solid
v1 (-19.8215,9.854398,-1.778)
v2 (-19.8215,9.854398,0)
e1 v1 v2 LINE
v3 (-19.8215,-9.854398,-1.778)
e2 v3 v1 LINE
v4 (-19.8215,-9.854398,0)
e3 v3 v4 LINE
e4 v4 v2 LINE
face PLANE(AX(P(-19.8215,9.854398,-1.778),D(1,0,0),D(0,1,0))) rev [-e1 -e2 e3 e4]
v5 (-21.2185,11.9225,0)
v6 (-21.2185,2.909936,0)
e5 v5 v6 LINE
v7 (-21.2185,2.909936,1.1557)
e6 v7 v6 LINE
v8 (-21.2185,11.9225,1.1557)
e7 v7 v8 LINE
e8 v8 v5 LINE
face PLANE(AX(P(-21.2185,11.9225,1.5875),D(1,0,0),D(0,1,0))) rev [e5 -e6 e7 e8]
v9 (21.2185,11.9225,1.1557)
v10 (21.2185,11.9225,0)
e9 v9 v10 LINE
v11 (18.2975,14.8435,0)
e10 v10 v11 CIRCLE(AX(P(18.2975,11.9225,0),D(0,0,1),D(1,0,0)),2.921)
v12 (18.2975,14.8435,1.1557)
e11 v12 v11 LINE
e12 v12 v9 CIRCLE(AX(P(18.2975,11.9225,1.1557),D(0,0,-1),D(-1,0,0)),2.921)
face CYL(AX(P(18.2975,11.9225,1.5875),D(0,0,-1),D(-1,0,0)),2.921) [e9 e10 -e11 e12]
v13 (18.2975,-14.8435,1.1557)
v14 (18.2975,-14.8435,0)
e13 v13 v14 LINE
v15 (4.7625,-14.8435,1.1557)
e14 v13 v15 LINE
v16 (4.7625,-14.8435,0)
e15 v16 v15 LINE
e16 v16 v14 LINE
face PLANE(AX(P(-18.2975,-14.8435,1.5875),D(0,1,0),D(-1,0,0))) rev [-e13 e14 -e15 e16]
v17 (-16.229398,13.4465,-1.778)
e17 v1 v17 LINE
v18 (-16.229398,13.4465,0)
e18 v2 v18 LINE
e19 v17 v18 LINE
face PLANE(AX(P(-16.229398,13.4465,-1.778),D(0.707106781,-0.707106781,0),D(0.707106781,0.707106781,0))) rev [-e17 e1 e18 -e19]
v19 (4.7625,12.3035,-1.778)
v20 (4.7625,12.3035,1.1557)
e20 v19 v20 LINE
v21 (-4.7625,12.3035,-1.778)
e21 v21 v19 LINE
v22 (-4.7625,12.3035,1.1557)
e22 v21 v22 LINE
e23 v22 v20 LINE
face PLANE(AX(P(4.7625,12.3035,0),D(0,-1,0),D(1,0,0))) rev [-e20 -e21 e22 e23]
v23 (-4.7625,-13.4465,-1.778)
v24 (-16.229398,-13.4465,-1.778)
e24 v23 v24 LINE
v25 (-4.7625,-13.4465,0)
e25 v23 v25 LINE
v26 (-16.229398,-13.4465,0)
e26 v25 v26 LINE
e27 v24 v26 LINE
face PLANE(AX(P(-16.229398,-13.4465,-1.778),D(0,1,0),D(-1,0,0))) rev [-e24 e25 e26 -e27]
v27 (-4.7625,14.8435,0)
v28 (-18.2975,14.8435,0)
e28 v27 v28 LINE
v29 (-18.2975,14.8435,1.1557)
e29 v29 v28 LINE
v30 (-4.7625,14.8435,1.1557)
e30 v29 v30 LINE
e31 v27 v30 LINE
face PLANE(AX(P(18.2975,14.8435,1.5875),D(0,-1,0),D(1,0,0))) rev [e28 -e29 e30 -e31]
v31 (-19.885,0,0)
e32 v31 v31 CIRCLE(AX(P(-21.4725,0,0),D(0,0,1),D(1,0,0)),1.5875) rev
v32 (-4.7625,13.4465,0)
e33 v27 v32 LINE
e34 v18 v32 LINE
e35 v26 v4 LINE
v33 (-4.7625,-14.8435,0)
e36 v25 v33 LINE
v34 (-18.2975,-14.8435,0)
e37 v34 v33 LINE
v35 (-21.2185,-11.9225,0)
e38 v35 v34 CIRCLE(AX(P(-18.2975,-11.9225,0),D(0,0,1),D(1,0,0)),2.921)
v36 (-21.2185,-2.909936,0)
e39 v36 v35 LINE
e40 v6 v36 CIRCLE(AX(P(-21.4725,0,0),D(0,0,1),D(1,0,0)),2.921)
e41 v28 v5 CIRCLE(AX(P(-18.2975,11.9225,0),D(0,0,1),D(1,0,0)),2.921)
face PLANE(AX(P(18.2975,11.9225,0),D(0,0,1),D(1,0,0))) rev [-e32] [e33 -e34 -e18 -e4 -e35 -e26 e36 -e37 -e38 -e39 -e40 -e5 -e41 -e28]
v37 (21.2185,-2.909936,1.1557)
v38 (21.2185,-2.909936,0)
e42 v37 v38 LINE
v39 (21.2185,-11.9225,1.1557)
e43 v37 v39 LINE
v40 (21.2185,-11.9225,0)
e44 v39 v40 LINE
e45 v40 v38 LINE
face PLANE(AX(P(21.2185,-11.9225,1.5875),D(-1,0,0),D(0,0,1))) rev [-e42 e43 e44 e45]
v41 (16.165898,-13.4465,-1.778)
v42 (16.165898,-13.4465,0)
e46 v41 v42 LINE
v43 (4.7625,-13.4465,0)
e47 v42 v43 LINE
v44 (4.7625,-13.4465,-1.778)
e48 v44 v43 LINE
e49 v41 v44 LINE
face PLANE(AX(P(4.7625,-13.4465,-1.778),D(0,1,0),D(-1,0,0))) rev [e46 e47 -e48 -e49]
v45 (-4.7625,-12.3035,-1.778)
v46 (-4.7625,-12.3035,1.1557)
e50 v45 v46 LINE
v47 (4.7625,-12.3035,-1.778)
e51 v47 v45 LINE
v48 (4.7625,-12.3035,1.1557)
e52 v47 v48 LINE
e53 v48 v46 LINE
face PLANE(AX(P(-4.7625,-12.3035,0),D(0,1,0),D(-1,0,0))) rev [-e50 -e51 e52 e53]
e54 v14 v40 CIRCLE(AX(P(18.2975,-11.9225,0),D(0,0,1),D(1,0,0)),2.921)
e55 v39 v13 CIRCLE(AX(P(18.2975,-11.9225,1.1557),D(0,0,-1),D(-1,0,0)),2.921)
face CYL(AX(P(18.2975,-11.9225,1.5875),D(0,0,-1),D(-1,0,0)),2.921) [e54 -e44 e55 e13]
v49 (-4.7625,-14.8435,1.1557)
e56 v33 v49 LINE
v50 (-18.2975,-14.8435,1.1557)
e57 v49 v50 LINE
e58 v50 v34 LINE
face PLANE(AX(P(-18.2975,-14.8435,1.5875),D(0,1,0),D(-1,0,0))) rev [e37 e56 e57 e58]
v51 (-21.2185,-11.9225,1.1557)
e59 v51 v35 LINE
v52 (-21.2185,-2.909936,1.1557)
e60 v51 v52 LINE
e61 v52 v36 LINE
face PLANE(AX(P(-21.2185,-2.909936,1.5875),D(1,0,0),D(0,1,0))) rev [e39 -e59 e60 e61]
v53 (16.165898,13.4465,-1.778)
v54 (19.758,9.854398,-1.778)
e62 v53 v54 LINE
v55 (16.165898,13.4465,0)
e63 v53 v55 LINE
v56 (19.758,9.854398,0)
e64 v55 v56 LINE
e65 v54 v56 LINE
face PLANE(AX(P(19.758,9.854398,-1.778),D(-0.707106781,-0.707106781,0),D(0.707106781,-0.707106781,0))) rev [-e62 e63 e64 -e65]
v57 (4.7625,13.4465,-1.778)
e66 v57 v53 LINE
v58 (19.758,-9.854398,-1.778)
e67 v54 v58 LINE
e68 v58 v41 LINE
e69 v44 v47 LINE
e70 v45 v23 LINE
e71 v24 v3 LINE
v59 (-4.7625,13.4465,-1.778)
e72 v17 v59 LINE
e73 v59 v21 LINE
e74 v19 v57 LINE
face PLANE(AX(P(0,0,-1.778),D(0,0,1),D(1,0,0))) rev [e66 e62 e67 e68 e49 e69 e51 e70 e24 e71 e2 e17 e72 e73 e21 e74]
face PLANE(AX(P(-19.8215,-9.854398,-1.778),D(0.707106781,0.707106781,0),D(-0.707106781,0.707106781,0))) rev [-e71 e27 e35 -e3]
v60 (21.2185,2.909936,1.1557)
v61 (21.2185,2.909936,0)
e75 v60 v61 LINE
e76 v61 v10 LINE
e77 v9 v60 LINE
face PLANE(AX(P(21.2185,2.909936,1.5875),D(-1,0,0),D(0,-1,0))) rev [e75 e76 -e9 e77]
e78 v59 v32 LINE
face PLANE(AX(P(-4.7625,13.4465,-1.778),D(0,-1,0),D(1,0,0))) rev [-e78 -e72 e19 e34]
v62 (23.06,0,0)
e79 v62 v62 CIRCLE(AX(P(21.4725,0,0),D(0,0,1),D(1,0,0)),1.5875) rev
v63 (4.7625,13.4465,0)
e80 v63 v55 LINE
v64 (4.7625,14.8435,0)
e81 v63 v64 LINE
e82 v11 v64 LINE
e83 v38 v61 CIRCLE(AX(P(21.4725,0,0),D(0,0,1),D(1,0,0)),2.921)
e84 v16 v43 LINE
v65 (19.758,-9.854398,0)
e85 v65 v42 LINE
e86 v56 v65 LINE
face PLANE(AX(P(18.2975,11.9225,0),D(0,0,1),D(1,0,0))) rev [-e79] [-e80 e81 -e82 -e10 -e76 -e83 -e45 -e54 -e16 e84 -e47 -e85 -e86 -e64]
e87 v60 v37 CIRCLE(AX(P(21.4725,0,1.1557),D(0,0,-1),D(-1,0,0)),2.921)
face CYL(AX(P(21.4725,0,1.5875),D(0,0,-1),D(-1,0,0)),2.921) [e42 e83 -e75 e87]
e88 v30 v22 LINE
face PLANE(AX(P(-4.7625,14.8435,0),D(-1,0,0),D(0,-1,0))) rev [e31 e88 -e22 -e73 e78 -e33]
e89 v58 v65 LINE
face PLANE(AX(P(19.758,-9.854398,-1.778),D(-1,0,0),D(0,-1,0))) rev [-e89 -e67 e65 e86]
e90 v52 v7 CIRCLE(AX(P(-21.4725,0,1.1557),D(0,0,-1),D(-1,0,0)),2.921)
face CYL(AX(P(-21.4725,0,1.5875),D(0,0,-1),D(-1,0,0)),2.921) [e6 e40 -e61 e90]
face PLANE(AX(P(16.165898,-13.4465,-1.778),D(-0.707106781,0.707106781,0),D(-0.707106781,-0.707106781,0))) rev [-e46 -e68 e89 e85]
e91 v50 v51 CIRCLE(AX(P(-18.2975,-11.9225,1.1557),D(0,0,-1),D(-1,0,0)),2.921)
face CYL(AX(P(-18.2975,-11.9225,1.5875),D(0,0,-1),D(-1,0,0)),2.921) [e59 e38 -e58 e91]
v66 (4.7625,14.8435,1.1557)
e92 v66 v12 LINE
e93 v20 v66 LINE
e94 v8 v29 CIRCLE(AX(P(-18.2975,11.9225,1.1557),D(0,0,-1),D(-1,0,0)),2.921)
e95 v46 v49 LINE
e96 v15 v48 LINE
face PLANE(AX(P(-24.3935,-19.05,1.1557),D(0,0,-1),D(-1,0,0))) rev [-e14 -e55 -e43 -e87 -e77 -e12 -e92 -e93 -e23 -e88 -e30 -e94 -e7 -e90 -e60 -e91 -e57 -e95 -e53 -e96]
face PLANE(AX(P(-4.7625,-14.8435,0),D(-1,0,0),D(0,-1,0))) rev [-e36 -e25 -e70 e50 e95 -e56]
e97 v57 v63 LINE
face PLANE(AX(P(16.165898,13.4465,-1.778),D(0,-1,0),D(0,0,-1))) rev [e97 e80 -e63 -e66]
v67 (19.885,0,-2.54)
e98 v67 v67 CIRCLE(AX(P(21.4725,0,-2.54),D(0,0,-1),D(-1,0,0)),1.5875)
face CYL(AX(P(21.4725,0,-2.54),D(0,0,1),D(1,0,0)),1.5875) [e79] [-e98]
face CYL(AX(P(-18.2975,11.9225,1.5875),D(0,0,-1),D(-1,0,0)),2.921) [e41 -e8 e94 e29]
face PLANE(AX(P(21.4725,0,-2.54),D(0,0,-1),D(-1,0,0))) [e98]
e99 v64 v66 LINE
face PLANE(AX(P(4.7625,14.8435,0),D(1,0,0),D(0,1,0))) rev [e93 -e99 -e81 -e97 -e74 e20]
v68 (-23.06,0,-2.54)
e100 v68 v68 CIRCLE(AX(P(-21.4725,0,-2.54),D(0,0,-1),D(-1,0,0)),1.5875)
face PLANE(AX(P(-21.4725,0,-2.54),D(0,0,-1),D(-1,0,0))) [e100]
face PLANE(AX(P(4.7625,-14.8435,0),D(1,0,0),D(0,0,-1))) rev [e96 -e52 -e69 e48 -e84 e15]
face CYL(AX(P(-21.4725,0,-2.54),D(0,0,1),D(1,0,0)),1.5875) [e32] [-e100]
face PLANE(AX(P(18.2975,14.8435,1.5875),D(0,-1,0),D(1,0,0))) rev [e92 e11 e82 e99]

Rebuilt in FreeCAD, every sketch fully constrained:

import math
import FreeCAD as App
import Part
import Sketcher

V = App.Vector
Q = App.Units.Quantity


def add_polygon(sketch, points):
    """Adds a closed chain of lines whose ends are joined by coincident constraints."""
    first, n = sketch.GeometryCount, len(points)
    for a, b in zip(points, points[1:] + points[:1]):
        sketch.addGeometry(Part.LineSegment(App.Vector(*a, 0), App.Vector(*b, 0)), False)
    for i in range(n):
        sketch.addConstraint(Sketcher.Constraint("Coincident", first + i, 2, first + (i + 1) % n, 1))

doc = App.newDocument("Part")
body = doc.addObject("PartDesign::Body", "Body")

# Sketch on XY plane
sketch1 = body.newObject("Sketcher::SketchObject", "Sketch")
sketch1.AttachmentSupport = (doc.getObject("XY_Plane"), [""])
sketch1.MapMode = "FlatFace"
sketch1.addGeometry([
    Part.LineSegment(V(21.2, 2.9, 0), V(21.2, 11.9, 0)),  # 0
    Part.ArcOfCircle(Part.Circle(V(18.3, 11.9, 0), V(0, 0, 1), 2.9), math.radians(0), math.radians(90)),  # 1
    Part.LineSegment(V(18.3, 14.8, 0), V(-18.3, 14.8, 0)),  # 2
    Part.ArcOfCircle(Part.Circle(V(-18.3, 11.9, 0), V(0, 0, 1), 2.9), math.radians(90), math.radians(180)),  # 3
    Part.LineSegment(V(-21.2, 11.9, 0), V(-21.2, 2.9, 0)),  # 4
    Part.ArcOfCircle(Part.Circle(V(-21.5, 0, 0), V(0, 0, 1), 2.9), math.radians(85), math.radians(275)),  # 5
    Part.LineSegment(V(-21.2, -2.9, 0), V(-21.2, -11.9, 0)),  # 6
    Part.ArcOfCircle(Part.Circle(V(-18.3, -11.9, 0), V(0, 0, 1), 2.9), math.radians(180), math.radians(270)),  # 7
    Part.LineSegment(V(-18.3, -14.8, 0), V(18.3, -14.8, 0)),  # 8
    Part.ArcOfCircle(Part.Circle(V(18.3, -11.9, 0), V(0, 0, 1), 2.9), math.radians(-90), math.radians(0)),  # 9
    Part.LineSegment(V(21.2, -11.9, 0), V(21.2, -2.9, 0)),  # 10
    Part.ArcOfCircle(Part.Circle(V(21.5, 0, 0), V(0, 0, 1), 2.9), math.radians(-95), math.radians(95)),  # 11
], False)
sketch1.addConstraint([
    Sketcher.Constraint("Tangent", 0, 2, 1, 1),
    Sketcher.Constraint("Tangent", 1, 2, 2, 1),
    Sketcher.Constraint("Tangent", 2, 2, 3, 1),
    Sketcher.Constraint("Tangent", 3, 2, 4, 1),
    Sketcher.Constraint("Coincident", 4, 2, 5, 1),
    Sketcher.Constraint("Coincident", 5, 2, 6, 1),
    Sketcher.Constraint("Tangent", 6, 2, 7, 1),
    Sketcher.Constraint("Tangent", 7, 2, 8, 1),
    Sketcher.Constraint("Tangent", 8, 2, 9, 1),
    Sketcher.Constraint("Tangent", 9, 2, 10, 1),
    Sketcher.Constraint("Coincident", 10, 2, 11, 1),
    Sketcher.Constraint("Coincident", 11, 2, 0, 1),
    Sketcher.Constraint("Vertical", 0),
    Sketcher.Constraint("Horizontal", 2),
    Sketcher.Constraint("Vertical", 4),
    Sketcher.Constraint("Vertical", 6),
    Sketcher.Constraint("Horizontal", 8),
    Sketcher.Constraint("Vertical", 10),
    Sketcher.Constraint("Equal", 1, 3),
    Sketcher.Constraint("Equal", 3, 5),
    Sketcher.Constraint("Equal", 5, 7),
    Sketcher.Constraint("Equal", 7, 9),
    Sketcher.Constraint("Equal", 9, 11),
    Sketcher.Constraint("Symmetric", 1, 3, 7, 3, -1, 1),
    Sketcher.Constraint("Symmetric", 5, 3, 11, 3, -1, 1),
    Sketcher.Constraint("Symmetric", 5, 2, 10, 2, -2),
    Sketcher.Constraint("Horizontal", 4, 2, 11, 2),
    Sketcher.Constraint("Radius", 1, Q("0.115 in")),
    Sketcher.Constraint("DistanceX", 0, 2, 11, 3, Q("0.01 in")),
    Sketcher.Constraint("DistanceX", 2, 2, 2, 1, 36.595),
    Sketcher.Constraint("DistanceY", -1, 1, 1, 3, 11.9225),
])
pad1 = body.newObject("PartDesign::Pad", "Pad")
pad1.Profile = sketch1
pad1.Length = Q("0.0625 in")

# Sketch on XY plane
sketch2 = body.newObject("Sketcher::SketchObject", "Sketch001")
sketch2.AttachmentSupport = (doc.getObject("XY_Plane"), [""])
sketch2.MapMode = "FlatFace"
sketch2.AttachmentOffset = App.Placement(V(0, 0, 0.0625 * 25.4), App.Rotation())
add_polygon(sketch2, [(-4.8, -12.3), (-4.8, -14.8), (4.8, -14.8), (4.8, -12.3)])  # lines 0-3
add_polygon(sketch2, [(-4.8, 14.8), (-4.8, 12.3), (4.8, 12.3), (4.8, 14.8)])  # lines 4-7
sketch2.addConstraint([
    Sketcher.Constraint("Vertical", 0),
    Sketcher.Constraint("Horizontal", 1),
    Sketcher.Constraint("Vertical", 2),
    Sketcher.Constraint("Horizontal", 3),
    Sketcher.Constraint("Vertical", 4),
    Sketcher.Constraint("Horizontal", 5),
    Sketcher.Constraint("Vertical", 6),
    Sketcher.Constraint("Horizontal", 7),
    Sketcher.Constraint("Symmetric", 2, 2, 4, 2, -1, 1),
    Sketcher.Constraint("Symmetric", 0, 2, 6, 2, -1, 1),
    Sketcher.Constraint("Vertical", 3, 2, 4, 2),
    Sketcher.Constraint("DistanceY", 0, 2, 0, 1, Q("0.1 in")),
    Sketcher.Constraint("DistanceX", 1, 1, 1, 2, Q("0.375 in")),
    Sketcher.Constraint("DistanceY", 0, 2, -1, 1, 14.8435),
])
pocket1 = body.newObject("PartDesign::Pocket", "Pocket")
pocket1.Profile = sketch2
pocket1.Type = "ThroughAll"

# Sketch on XY plane
sketch3 = body.newObject("Sketcher::SketchObject", "Sketch002")
sketch3.AttachmentSupport = (doc.getObject("XY_Plane"), [""])
sketch3.MapMode = "FlatFace"
sketch3.addGeometry([
    Part.Circle(V(21.5, 0, 0), V(0, 0, 1), 1.6),
    Part.Circle(V(-21.5, 0, 0), V(0, 0, 1), 1.6),
], False)
sketch3.addConstraint([
    Sketcher.Constraint("Equal", 0, 1),
    Sketcher.Constraint("Symmetric", 0, 3, 1, 3, -1, 1),
    Sketcher.Constraint("PointOnObject", 0, 3, -1),
    Sketcher.Constraint("Diameter", 0, Q("0.125 in")),
    Sketcher.Constraint("DistanceX", -1, 1, 0, 3, 21.4725),
])
pad2 = body.newObject("PartDesign::Pad", "Pad001")
pad2.Profile = sketch3
pad2.Length = Q("0.1 in")
pad2.Reversed = True

# Sketch on XY plane
sketch4 = body.newObject("Sketcher::SketchObject", "Sketch003")
sketch4.AttachmentSupport = (doc.getObject("XY_Plane"), [""])
sketch4.MapMode = "FlatFace"
add_polygon(sketch4, [(16.2, 13.4), (19.8, 9.9), (19.8, -9.9), (16.2, -13.4), (4.8, -13.4), (4.8, -12.3), (-4.8, -12.3), (-4.8, -13.4), (-16.2, -13.4), (-19.8, -9.9), (-19.8, 9.9), (-16.2, 13.4), (-4.8, 13.4), (-4.8, 12.3), (4.8, 12.3), (4.8, 13.4)])  # lines 0-15
sketch4.addConstraint([
    Sketcher.Constraint("Vertical", 1),
    Sketcher.Constraint("Horizontal", 3),
    Sketcher.Constraint("Vertical", 4),
    Sketcher.Constraint("Horizontal", 5),
    Sketcher.Constraint("Vertical", 6),
    Sketcher.Constraint("Horizontal", 7),
    Sketcher.Constraint("Vertical", 9),
    Sketcher.Constraint("Horizontal", 11),
    Sketcher.Constraint("Vertical", 12),
    Sketcher.Constraint("Horizontal", 13),
    Sketcher.Constraint("Vertical", 14),
    Sketcher.Constraint("Horizontal", 15),
    Sketcher.Constraint("Symmetric", 3, 2, 11, 2, -1, 1),
    Sketcher.Constraint("Symmetric", 5, 2, 13, 2, -1, 1),
    Sketcher.Constraint("Symmetric", 3, 2, 6, 2, -2),
    Sketcher.Constraint("Symmetric", 2, 2, 15, 2, -1),
    Sketcher.Constraint("Perpendicular", 0, 2),
    Sketcher.Constraint("Perpendicular", 2, 8),
    Sketcher.Constraint("Perpendicular", 8, 10),
    Sketcher.Constraint("Horizontal", 1, 2, 8, 2),
    Sketcher.Constraint("Horizontal", 0, 2, 9, 2),
    Sketcher.Constraint("Vertical", 7, 2, 10, 2),
    Sketcher.Constraint("Distance", 0, Q("0.2 in")),
    Sketcher.Constraint("DistanceX", 5, 2, 5, 1, Q("0.375 in")),
    Sketcher.Constraint("DistanceY", 4, 1, 4, 2, Q("0.045 in")),
    Sketcher.Constraint("DistanceX", -1, 1, 0, 2, 19.758),
    Sketcher.Constraint("DistanceY", 2, 2, -1, 1, 13.4465),
    Sketcher.Constraint("DistanceX", 8, 2, -1, 1, 19.8215),
])
pad3 = body.newObject("PartDesign::Pad", "Pad002")
pad3.Profile = sketch4
pad3.Length = Q("0.07 in")
pad3.Reversed = True

# Sketch on XZ plane
sketch5 = body.newObject("Sketcher::SketchObject", "Sketch004")
sketch5.AttachmentSupport = (doc.getObject("XZ_Plane"), [""])
sketch5.MapMode = "FlatFace"
add_polygon(sketch5, [(-24.39, 1.16), (-24.39, 1.59), (24.39, 1.59), (24.39, 1.16)])  # lines 0-3
sketch5.addConstraint([
    Sketcher.Constraint("Vertical", 0),
    Sketcher.Constraint("Horizontal", 1),
    Sketcher.Constraint("Vertical", 2),
    Sketcher.Constraint("Horizontal", 3),
    Sketcher.Constraint("DistanceY", 0, 1, 0, 2, Q("0.017 in")),
    Sketcher.Constraint("DistanceY", -1, 1, 0, 2, Q("0.0625 in")),
    Sketcher.Constraint("DistanceX", 1, 1, 1, 2, 48.787),
    Sketcher.Constraint("DistanceX", 0, 2, -1, 1, 24.3935),
])
pocket2 = body.newObject("PartDesign::Pocket", "Pocket001")
pocket2.Profile = sketch5
pocket2.Length = Q("1.5 in")
pocket2.Midplane = True

doc.recompute()
